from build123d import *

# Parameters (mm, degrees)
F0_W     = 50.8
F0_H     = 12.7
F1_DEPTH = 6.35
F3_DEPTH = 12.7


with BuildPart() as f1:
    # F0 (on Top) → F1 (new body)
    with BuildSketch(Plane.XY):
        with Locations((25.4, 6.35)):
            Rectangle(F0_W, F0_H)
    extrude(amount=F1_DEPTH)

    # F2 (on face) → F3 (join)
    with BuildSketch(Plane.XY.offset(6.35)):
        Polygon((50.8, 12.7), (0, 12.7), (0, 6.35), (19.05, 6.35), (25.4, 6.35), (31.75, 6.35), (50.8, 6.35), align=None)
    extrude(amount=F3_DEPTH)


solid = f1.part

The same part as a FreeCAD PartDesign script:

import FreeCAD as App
import Part
import Sketcher

V = App.Vector
Q = App.Units.Quantity

doc = App.newDocument("Part")
params = doc.addObject("Spreadsheet::Sheet", "Params")
for row, (alias, value) in enumerate([
    ("sketch1_width", "2 in"),
    ("sketch1_height", "0.5 in"),
    ("pad1_length", "0.25 in"),
    ("sketch2_width", "2 in"),
    ("sketch2_height", "0.25 in"),
    ("pad2_length", "0.5 in"),
], start=1):
    params.set(f"A{row}", alias)
    params.set(f"B{row}", "=" + value)
    params.setAlias(f"B{row}", alias)

body = doc.addObject("PartDesign::Body", "Body")

# Sketch on XY plane
sketch1 = body.newObject("Sketcher::SketchObject", "Sketch")
sketch1.AttachmentSupport = (doc.getObject("XY_Plane"), [""])
sketch1.MapMode = "FlatFace"
sketch1.addGeometry(Part.LineSegment(V(0, 13, 0), V(0, 0, 0)), False)
sketch1.addGeometry(Part.LineSegment(V(0, 0, 0), V(51, 0, 0)), False)
sketch1.addGeometry(Part.LineSegment(V(51, 0, 0), V(51, 13, 0)), False)
sketch1.addGeometry(Part.LineSegment(V(51, 13, 0), V(0, 13, 0)), False)
sketch1.addConstraint(Sketcher.Constraint("Coincident", 0, 2, 1, 1))
sketch1.addConstraint(Sketcher.Constraint("Coincident", 1, 2, 2, 1))
sketch1.addConstraint(Sketcher.Constraint("Coincident", 2, 2, 3, 1))
sketch1.addConstraint(Sketcher.Constraint("Coincident", 3, 2, 0, 1))
sketch1.addConstraint(Sketcher.Constraint("Vertical", 0))
sketch1.addConstraint(Sketcher.Constraint("Horizontal", 1))
sketch1.addConstraint(Sketcher.Constraint("Vertical", 2))
sketch1.addConstraint(Sketcher.Constraint("Horizontal", 3))
sketch1.addConstraint(Sketcher.Constraint("Coincident", 0, 2, -1, 1))
sketch1.addConstraint(Sketcher.Constraint("DistanceX", 1, 1, 1, 2, Q("2 in")))
sketch1.addConstraint(Sketcher.Constraint("DistanceY", 0, 2, 0, 1, Q("0.5 in")))
sketch1.setExpression("Constraints[9]", "Params.sketch1_width")
sketch1.setExpression("Constraints[10]", "Params.sketch1_height")
pad1 = body.newObject("PartDesign::Pad", "Pad")
pad1.Profile = sketch1
pad1.setExpression("Length", "Params.pad1_length")

# Sketch on XY plane
sketch2 = body.newObject("Sketcher::SketchObject", "Sketch001")
sketch2.AttachmentSupport = (doc.getObject("XY_Plane"), [""])
sketch2.MapMode = "FlatFace"
sketch2.AttachmentOffset = App.Placement(V(0, 0, 0.25 * 25.4), App.Rotation())
sketch2.addGeometry(Part.LineSegment(V(51, 13, 0), V(0, 13, 0)), False)
sketch2.addGeometry(Part.LineSegment(V(0, 13, 0), V(0, 6, 0)), False)
sketch2.addGeometry(Part.LineSegment(V(0, 6, 0), V(51, 6, 0)), False)
sketch2.addGeometry(Part.LineSegment(V(51, 6, 0), V(51, 13, 0)), False)
sketch2.addConstraint(Sketcher.Constraint("Coincident", 0, 2, 1, 1))
sketch2.addConstraint(Sketcher.Constraint("Coincident", 1, 2, 2, 1))
sketch2.addConstraint(Sketcher.Constraint("Coincident", 2, 2, 3, 1))
sketch2.addConstraint(Sketcher.Constraint("Coincident", 3, 2, 0, 1))
sketch2.addConstraint(Sketcher.Constraint("Horizontal", 0))
sketch2.addConstraint(Sketcher.Constraint("Vertical", 1))
sketch2.addConstraint(Sketcher.Constraint("Horizontal", 2))
sketch2.addConstraint(Sketcher.Constraint("Vertical", 3))
sketch2.addConstraint(Sketcher.Constraint("PointOnObject", 0, 2, -2))
sketch2.addConstraint(Sketcher.Constraint("DistanceX", 0, 2, 0, 1, Q("2 in")))
sketch2.addConstraint(Sketcher.Constraint("DistanceY", 1, 2, 1, 1, Q("0.25 in")))
sketch2.addConstraint(Sketcher.Constraint("DistanceY", -1, 1, 0, 2, Q("0.5 in")))
sketch2.setExpression("Constraints[9]", "Params.sketch2_width")
sketch2.setExpression("Constraints[10]", "Params.sketch2_height")
pad2 = body.newObject("PartDesign::Pad", "Pad001")
pad2.Profile = sketch2
pad2.setExpression("Length", "Params.pad2_length")

doc.recompute()
